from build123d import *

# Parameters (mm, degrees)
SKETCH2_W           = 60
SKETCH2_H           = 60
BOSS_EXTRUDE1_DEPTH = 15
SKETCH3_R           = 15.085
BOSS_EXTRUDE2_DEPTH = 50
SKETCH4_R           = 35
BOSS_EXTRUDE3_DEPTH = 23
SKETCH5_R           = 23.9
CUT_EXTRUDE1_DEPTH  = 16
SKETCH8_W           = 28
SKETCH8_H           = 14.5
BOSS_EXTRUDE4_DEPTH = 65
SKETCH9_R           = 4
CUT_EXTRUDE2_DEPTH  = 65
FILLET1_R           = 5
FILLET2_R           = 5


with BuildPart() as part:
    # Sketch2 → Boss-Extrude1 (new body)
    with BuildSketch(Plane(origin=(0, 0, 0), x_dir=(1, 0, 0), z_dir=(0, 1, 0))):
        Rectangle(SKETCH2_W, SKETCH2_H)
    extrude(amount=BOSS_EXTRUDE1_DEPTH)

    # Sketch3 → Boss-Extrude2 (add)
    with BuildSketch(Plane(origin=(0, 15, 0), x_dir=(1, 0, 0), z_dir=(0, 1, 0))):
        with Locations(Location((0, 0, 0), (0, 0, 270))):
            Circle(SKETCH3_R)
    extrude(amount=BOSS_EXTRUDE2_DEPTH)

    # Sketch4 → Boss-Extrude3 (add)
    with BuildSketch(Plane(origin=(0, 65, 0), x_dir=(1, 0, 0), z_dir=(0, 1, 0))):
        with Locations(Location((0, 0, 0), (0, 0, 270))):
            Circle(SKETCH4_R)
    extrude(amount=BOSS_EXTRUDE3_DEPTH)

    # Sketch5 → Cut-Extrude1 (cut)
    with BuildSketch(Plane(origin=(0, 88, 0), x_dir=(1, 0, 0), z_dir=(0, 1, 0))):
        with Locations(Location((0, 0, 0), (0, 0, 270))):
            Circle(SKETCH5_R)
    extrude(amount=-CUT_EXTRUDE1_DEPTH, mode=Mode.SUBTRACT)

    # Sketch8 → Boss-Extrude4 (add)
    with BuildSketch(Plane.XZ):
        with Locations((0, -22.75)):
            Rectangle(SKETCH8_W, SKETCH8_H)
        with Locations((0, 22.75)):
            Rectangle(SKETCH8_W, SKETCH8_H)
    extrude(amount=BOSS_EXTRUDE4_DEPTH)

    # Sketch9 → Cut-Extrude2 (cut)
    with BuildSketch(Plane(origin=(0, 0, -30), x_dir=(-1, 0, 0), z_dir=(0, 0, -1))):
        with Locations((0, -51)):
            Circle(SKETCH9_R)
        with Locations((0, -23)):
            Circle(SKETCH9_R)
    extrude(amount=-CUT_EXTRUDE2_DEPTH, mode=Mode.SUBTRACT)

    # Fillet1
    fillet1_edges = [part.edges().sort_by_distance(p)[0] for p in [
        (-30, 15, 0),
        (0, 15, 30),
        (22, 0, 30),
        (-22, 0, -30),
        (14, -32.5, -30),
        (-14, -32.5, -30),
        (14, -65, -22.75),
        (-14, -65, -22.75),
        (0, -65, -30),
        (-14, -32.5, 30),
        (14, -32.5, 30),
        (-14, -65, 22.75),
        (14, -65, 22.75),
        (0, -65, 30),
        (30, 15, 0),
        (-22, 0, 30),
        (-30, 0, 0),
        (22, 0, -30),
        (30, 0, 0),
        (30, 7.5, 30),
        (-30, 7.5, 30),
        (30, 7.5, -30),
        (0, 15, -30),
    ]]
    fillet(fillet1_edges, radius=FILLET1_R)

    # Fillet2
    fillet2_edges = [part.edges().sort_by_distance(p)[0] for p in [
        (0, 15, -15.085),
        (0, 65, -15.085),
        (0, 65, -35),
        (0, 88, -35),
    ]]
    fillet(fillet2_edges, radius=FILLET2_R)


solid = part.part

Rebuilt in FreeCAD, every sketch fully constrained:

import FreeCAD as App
import Part
import Sketcher
Q = App.Units.Quantity


def edges_at(feature, points):
    """Names of the edges that pass closest to the given points."""
    edges = feature.Shape.Edges
    near = lambda p: min(range(len(edges)), key=lambda i: edges[i].distToShape(Part.Vertex(*p))[0])
    return sorted({f"Edge{near(p) + 1}" for p in points})

doc = App.newDocument("Part")
body = doc.addObject("PartDesign::Body", "Body")

sketch1 = doc.addObject("Sketcher::SketchObject", "Sketch")
body.addObject(sketch1)
sketch1.AttachmentSupport = (doc.XZ_Plane, [""])
sketch1.MapMode = "FlatFace"
sketch1.addGeometry(Part.LineSegment(App.Vector(-30, -30, 0), App.Vector(-30, 30, 0)), False)
sketch1.addGeometry(Part.LineSegment(App.Vector(-30, 30, 0), App.Vector(30, 30, 0)), False)
sketch1.addGeometry(Part.LineSegment(App.Vector(30, 30, 0), App.Vector(30, -30, 0)), False)
sketch1.addGeometry(Part.LineSegment(App.Vector(30, -30, 0), App.Vector(-30, -30, 0)), False)
sketch1.addConstraint(Sketcher.Constraint("Coincident", 0, 2, 1, 1))
sketch1.addConstraint(Sketcher.Constraint("Coincident", 1, 2, 2, 1))
sketch1.addConstraint(Sketcher.Constraint("Coincident", 2, 2, 3, 1))
sketch1.addConstraint(Sketcher.Constraint("Coincident", 3, 2, 0, 1))
sketch1.addConstraint(Sketcher.Constraint("Vertical", 0))
sketch1.addConstraint(Sketcher.Constraint("Horizontal", 1))
sketch1.addConstraint(Sketcher.Constraint("Vertical", 2))
sketch1.addConstraint(Sketcher.Constraint("Horizontal", 3))
sketch1.addConstraint(Sketcher.Constraint("Symmetric", 0, 2, 2, 2, -1, 1))
sketch1.addConstraint(Sketcher.Constraint("Equal", 3, 0))
sketch1.addConstraint(Sketcher.Constraint("DistanceX", 1, 1, 1, 2, Q("60 mm")))
pad1 = doc.addObject("PartDesign::Pad", "Pad")
body.addObject(pad1)
pad1.Profile = sketch1
pad1.Length = 15
pad1.Reversed = True

sketch2 = doc.addObject("Sketcher::SketchObject", "Sketch001")
body.addObject(sketch2)
sketch2.AttachmentSupport = (doc.XZ_Plane, [""])
sketch2.MapMode = "FlatFace"
sketch2.AttachmentOffset = App.Placement(App.Vector(0, 0, -15), App.Rotation())
sketch2.addGeometry(Part.Circle(App.Vector(0, 0, 0), App.Vector(0, 0, 1), 15.085), False)
sketch2.addConstraint(Sketcher.Constraint("Coincident", 0, 3, -1, 1))
sketch2.addConstraint(Sketcher.Constraint("Diameter", 0, Q("30.17 mm")))
pad2 = doc.addObject("PartDesign::Pad", "Pad001")
body.addObject(pad2)
pad2.Profile = sketch2
pad2.Length = 50
pad2.Reversed = True

sketch3 = doc.addObject("Sketcher::SketchObject", "Sketch002")
body.addObject(sketch3)
sketch3.AttachmentSupport = (doc.XZ_Plane, [""])
sketch3.MapMode = "FlatFace"
sketch3.AttachmentOffset = App.Placement(App.Vector(0, 0, -65), App.Rotation())
sketch3.addGeometry(Part.Circle(App.Vector(0, 0, 0), App.Vector(0, 0, 1), 35), False)
sketch3.addConstraint(Sketcher.Constraint("Coincident", 0, 3, -1, 1))
sketch3.addConstraint(Sketcher.Constraint("Diameter", 0, Q("70 mm")))
pad3 = doc.addObject("PartDesign::Pad", "Pad002")
body.addObject(pad3)
pad3.Profile = sketch3
pad3.Length = 23
pad3.Reversed = True

sketch4 = doc.addObject("Sketcher::SketchObject", "Sketch003")
body.addObject(sketch4)
sketch4.AttachmentSupport = (doc.XZ_Plane, [""])
sketch4.MapMode = "FlatFace"
sketch4.AttachmentOffset = App.Placement(App.Vector(0, 0, -88), App.Rotation())
sketch4.addGeometry(Part.Circle(App.Vector(0, 0, 0), App.Vector(0, 0, 1), 23.9), False)
sketch4.addConstraint(Sketcher.Constraint("Coincident", 0, 3, -1, 1))
sketch4.addConstraint(Sketcher.Constraint("Diameter", 0, Q("47.8 mm")))
pocket1 = doc.addObject("PartDesign::Pocket", "Pocket")
body.addObject(pocket1)
pocket1.Profile = sketch4
pocket1.Length = 16
pocket1.Reversed = True

sketch5 = doc.addObject("Sketcher::SketchObject", "Sketch004")
body.addObject(sketch5)
sketch5.AttachmentSupport = (doc.XZ_Plane, [""])
sketch5.MapMode = "FlatFace"
sketch5.addGeometry(Part.LineSegment(App.Vector(-14, -15.5, 0), App.Vector(-14, -30, 0)), False)
sketch5.addGeometry(Part.LineSegment(App.Vector(-14, -30, 0), App.Vector(14, -30, 0)), False)
sketch5.addGeometry(Part.LineSegment(App.Vector(14, -30, 0), App.Vector(14, -15.5, 0)), False)
sketch5.addGeometry(Part.LineSegment(App.Vector(14, -15.5, 0), App.Vector(-14, -15.5, 0)), False)
sketch5.addGeometry(Part.LineSegment(App.Vector(-14, 30, 0), App.Vector(-14, 15.5, 0)), False)
sketch5.addGeometry(Part.LineSegment(App.Vector(-14, 15.5, 0), App.Vector(14, 15.5, 0)), False)
sketch5.addGeometry(Part.LineSegment(App.Vector(14, 15.5, 0), App.Vector(14, 30, 0)), False)
sketch5.addGeometry(Part.LineSegment(App.Vector(14, 30, 0), App.Vector(-14, 30, 0)), False)
sketch5.addConstraint(Sketcher.Constraint("Coincident", 0, 2, 1, 1))
sketch5.addConstraint(Sketcher.Constraint("Coincident", 1, 2, 2, 1))
sketch5.addConstraint(Sketcher.Constraint("Coincident", 2, 2, 3, 1))
sketch5.addConstraint(Sketcher.Constraint("Coincident", 3, 2, 0, 1))
sketch5.addConstraint(Sketcher.Constraint("Coincident", 4, 2, 5, 1))
sketch5.addConstraint(Sketcher.Constraint("Coincident", 5, 2, 6, 1))
sketch5.addConstraint(Sketcher.Constraint("Coincident", 6, 2, 7, 1))
sketch5.addConstraint(Sketcher.Constraint("Coincident", 7, 2, 4, 1))
sketch5.addConstraint(Sketcher.Constraint("Vertical", 0))
sketch5.addConstraint(Sketcher.Constraint("Horizontal", 1))
sketch5.addConstraint(Sketcher.Constraint("Vertical", 2))
sketch5.addConstraint(Sketcher.Constraint("Horizontal", 3))
sketch5.addConstraint(Sketcher.Constraint("Vertical", 4))
sketch5.addConstraint(Sketcher.Constraint("Horizontal", 5))
sketch5.addConstraint(Sketcher.Constraint("Vertical", 6))
sketch5.addConstraint(Sketcher.Constraint("Horizontal", 7))
sketch5.addConstraint(Sketcher.Constraint("Symmetric", 2, 2, 4, 2, -1, 1))
sketch5.addConstraint(Sketcher.Constraint("Symmetric", 0, 2, 6, 2, -1, 1))
sketch5.addConstraint(Sketcher.Constraint("Vertical", 3, 2, 4, 2))
sketch5.addConstraint(Sketcher.Constraint("DistanceX", 1, 1, 1, 2, Q("28 mm")))
sketch5.addConstraint(Sketcher.Constraint("DistanceY", 0, 2, 0, 1, Q("14.5 mm")))
sketch5.addConstraint(Sketcher.Constraint("DistanceY", 0, 2, -1, 1, Q("30 mm")))
pad4 = doc.addObject("PartDesign::Pad", "Pad003")
body.addObject(pad4)
pad4.Profile = sketch5
pad4.Length = 65

sketch6 = doc.addObject("Sketcher::SketchObject", "Sketch005")
body.addObject(sketch6)
sketch6.AttachmentSupport = (doc.XY_Plane, [""])
sketch6.MapMode = "FlatFace"
sketch6.AttachmentOffset = App.Placement(App.Vector(0, 0, -30), App.Rotation())
sketch6.addGeometry(Part.Circle(App.Vector(0, -51, 0), App.Vector(0, 0, 1), 4), False)
sketch6.addGeometry(Part.Circle(App.Vector(0, -23, 0), App.Vector(0, 0, 1), 4), False)
sketch6.addConstraint(Sketcher.Constraint("Equal", 0, 1))
sketch6.addConstraint(Sketcher.Constraint("PointOnObject", 0, 3, -2))
sketch6.addConstraint(Sketcher.Constraint("PointOnObject", 1, 3, -2))
sketch6.addConstraint(Sketcher.Constraint("Diameter", 0, Q("8 mm")))
sketch6.addConstraint(Sketcher.Constraint("DistanceY", 0, 3, -1, 1, Q("51 mm")))
sketch6.addConstraint(Sketcher.Constraint("DistanceY", 1, 3, -1, 1, Q("23 mm")))
pocket2 = doc.addObject("PartDesign::Pocket", "Pocket001")
body.addObject(pocket2)
pocket2.Profile = sketch6
pocket2.Length = 65
pocket2.Reversed = True
doc.recompute()

fillet = doc.addObject("PartDesign::Fillet", "Fillet")
body.addObject(fillet)
fillet.Base = (pocket2, edges_at(pocket2, [
    (-30, 15, 0),
    (0, 15, 30),
    (22, 0, 30),
    (-22, 0, -30),
    (14, -32.5, -30),
    (-14, -32.5, -30),
    (14, -65, -22.75),
    (-14, -65, -22.75),
    (0, -65, -30),
    (-14, -32.5, 30),
    (14, -32.5, 30),
    (-14, -65, 22.75),
    (14, -65, 22.75),
    (0, -65, 30),
    (30, 15, 0),
    (-22, 0, 30),
    (-30, 0, 0),
    (22, 0, -30),
    (30, 0, 0),
    (30, 7.5, 30),
    (-30, 7.5, 30),
    (30, 7.5, -30),
    (0, 15, -30),
]))
fillet.Radius = 5
doc.recompute()

fillet2 = doc.addObject("PartDesign::Fillet", "Fillet001")
body.addObject(fillet2)
fillet2.Base = (fillet, edges_at(fillet, [
    (0, 15, -15.085),
    (0, 65, -15.085),
    (0, 65, -35),
    (0, 88, -35),
]))
fillet2.Radius = 5

doc.recompute()
